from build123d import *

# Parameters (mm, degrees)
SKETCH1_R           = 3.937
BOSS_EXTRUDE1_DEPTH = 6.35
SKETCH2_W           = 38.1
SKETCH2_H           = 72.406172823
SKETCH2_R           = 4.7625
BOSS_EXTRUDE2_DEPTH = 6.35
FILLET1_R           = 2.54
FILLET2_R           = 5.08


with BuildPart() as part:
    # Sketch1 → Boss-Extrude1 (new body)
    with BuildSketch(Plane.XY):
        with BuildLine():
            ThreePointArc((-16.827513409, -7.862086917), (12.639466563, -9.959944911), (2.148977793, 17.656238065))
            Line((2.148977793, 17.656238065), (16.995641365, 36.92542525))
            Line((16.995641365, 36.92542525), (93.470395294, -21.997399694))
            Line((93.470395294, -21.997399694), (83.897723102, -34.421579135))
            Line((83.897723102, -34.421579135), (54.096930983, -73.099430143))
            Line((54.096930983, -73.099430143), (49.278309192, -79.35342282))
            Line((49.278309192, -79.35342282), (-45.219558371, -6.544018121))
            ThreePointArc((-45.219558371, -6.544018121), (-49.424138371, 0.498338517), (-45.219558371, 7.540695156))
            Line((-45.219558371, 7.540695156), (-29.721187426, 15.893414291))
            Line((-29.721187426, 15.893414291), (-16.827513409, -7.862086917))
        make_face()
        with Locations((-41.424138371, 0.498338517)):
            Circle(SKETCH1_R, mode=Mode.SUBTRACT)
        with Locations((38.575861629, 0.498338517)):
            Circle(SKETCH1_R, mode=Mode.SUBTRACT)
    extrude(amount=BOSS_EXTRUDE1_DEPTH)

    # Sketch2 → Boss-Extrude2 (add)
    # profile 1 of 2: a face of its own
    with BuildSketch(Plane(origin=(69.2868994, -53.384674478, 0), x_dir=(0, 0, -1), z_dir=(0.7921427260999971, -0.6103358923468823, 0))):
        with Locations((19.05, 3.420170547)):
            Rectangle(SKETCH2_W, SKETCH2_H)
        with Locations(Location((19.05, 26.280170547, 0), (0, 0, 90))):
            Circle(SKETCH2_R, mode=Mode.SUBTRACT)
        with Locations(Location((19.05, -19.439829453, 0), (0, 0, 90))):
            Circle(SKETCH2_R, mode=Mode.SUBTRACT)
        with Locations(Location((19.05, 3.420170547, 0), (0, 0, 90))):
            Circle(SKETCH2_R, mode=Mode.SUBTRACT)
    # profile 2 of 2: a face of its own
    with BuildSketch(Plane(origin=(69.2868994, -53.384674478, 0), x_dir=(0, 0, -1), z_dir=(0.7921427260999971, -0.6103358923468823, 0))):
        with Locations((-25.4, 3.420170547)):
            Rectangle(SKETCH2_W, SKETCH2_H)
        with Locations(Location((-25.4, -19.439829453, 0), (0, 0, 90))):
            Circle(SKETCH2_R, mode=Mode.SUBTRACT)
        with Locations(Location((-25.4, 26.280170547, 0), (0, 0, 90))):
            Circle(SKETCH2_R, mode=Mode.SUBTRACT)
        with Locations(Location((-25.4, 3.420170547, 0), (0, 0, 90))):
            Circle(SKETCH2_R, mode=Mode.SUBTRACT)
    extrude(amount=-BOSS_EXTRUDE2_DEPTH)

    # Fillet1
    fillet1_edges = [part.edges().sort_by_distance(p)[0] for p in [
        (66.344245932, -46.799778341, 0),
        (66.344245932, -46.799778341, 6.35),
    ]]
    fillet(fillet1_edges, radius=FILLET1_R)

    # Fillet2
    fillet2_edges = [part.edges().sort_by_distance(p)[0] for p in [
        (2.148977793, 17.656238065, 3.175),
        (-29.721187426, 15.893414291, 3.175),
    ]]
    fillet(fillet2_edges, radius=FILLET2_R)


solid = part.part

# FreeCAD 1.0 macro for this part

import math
import FreeCAD as App
import Part
import Sketcher

V = App.Vector
Q = App.Units.Quantity


def edges_at(feature, points):
    """Names of the edges that pass closest to the given points."""
    edges = feature.Shape.Edges
    near = lambda p: min(range(len(edges)), key=lambda i: edges[i].distToShape(Part.Vertex(*p))[0])
    return sorted({f"Edge{near(p) + 1}" for p in points})


def add_polygon(sketch, points):
    """Adds a closed chain of lines whose ends are joined by coincident constraints."""
    first, n = sketch.GeometryCount, len(points)
    for a, b in zip(points, points[1:] + points[:1]):
        sketch.addGeometry(Part.LineSegment(App.Vector(*a, 0), App.Vector(*b, 0)), False)
    for i in range(n):
        sketch.addConstraint(Sketcher.Constraint("Coincident", first + i, 2, first + (i + 1) % n, 1))

doc = App.newDocument("Part")
body = doc.addObject("PartDesign::Body", "Body")

# Sketch on XY plane
sketch1 = doc.addObject("Sketcher::SketchObject", "Sketch")
body.addObject(sketch1)
sketch1.AttachmentSupport = (doc.XY_Plane, [""])
sketch1.MapMode = "FlatFace"
sketch1.addGeometry(Part.ArcOfCircle(Part.Circle(V(-1.424138, 0.498339, 0), V(0, 0, 1), 17.526), math.radians(-151.508403), math.radians(78.23634)), False)
sketch1.addGeometry(Part.LineSegment(V(-16.827513, -7.862087, 0), V(-29.721187, 15.893414, 0)), False)
sketch1.addGeometry(Part.LineSegment(V(-29.721187, 15.893414, 0), V(-45.219558, 7.540695, 0)), False)
sketch1.addGeometry(Part.ArcOfCircle(Part.Circle(V(-41.424138, 0.498339, 0), V(0, 0, 1), 8), math.radians(118.322081), math.radians(241.677919)), False)
sketch1.addGeometry(Part.LineSegment(V(-45.219558, -6.544018, 0), V(49.278309, -79.353423, 0)), False)
sketch1.addGeometry(Part.LineSegment(V(49.278309, -79.353423, 0), V(54.096931, -73.09943, 0)), False)
sketch1.addGeometry(Part.LineSegment(V(54.096931, -73.09943, 0), V(83.897723, -34.421579, 0)), False)
sketch1.addGeometry(Part.LineSegment(V(83.897723, -34.421579, 0), V(93.470395, -21.9974, 0)), False)
sketch1.addGeometry(Part.LineSegment(V(93.470395, -21.9974, 0), V(16.995641, 36.925425, 0)), False)
sketch1.addGeometry(Part.LineSegment(V(16.995641, 36.925425, 0), V(2.148978, 17.656238, 0)), False)
sketch1.addGeometry(Part.Circle(V(38.575862, 0.498339, 0), V(0, 0, 1), 3.937), False)
sketch1.addGeometry(Part.Circle(V(-41.424138, 0.498339, 0), V(0, 0, 1), 3.937), False)
sketch1.addConstraint(Sketcher.Constraint("Coincident", 0, 1, 1, 1))
sketch1.addConstraint(Sketcher.Constraint("Coincident", 1, 2, 2, 1))
sketch1.addConstraint(Sketcher.Constraint("Coincident", 2, 2, 3, 1))
sketch1.addConstraint(Sketcher.Constraint("Coincident", 3, 2, 4, 1))
sketch1.addConstraint(Sketcher.Constraint("Coincident", 4, 2, 5, 1))
sketch1.addConstraint(Sketcher.Constraint("Coincident", 5, 2, 6, 1))
sketch1.addConstraint(Sketcher.Constraint("Coincident", 6, 2, 7, 1))
sketch1.addConstraint(Sketcher.Constraint("Coincident", 7, 2, 8, 1))
sketch1.addConstraint(Sketcher.Constraint("Coincident", 8, 2, 9, 1))
sketch1.addConstraint(Sketcher.Constraint("Coincident", 9, 2, 0, 2))
sketch1.addConstraint(Sketcher.Constraint("Coincident", 11, 3, 3, 3))
sketch1.addConstraint(Sketcher.Constraint("Diameter", 10, Q("0.31 in")))
sketch1.addConstraint(Sketcher.Constraint("Diameter", 11, Q("0.31 in")))
sketch1.addConstraint(Sketcher.Constraint("Radius", 0, Q("0.69 in")))
sketch1.addConstraint(Sketcher.Constraint("Radius", 3, 8.0))
sketch1.addConstraint(Sketcher.Constraint("DistanceY", 6, 2, 10, 3, Q("1.3747999 in")))
sketch1.addConstraint(Sketcher.Constraint("DistanceY", 6, 2, 0, 3, Q("1.3747999 in")))
sketch1.addConstraint(Sketcher.Constraint("Distance", 9, 24.325398))
sketch1.addConstraint(Sketcher.Constraint("DistanceY", 7, 2, -1, 1, 21.9974))
sketch1.addConstraint(Sketcher.Constraint("DistanceX", 3, 3, 0, 3, 40.0))
sketch1.addConstraint(Sketcher.Constraint("DistanceX", 0, 3, 10, 3, 40.0))
sketch1.addConstraint(Sketcher.Constraint("DistanceY", 0, 1, 1, 2, 23.755501))
sketch1.addConstraint(Sketcher.Constraint("DistanceX", 2, 2, 8, 2, 62.2152))
sketch1.addConstraint(Sketcher.Constraint("DistanceY", 0, 3, 9, 2, 17.1579))
sketch1.addConstraint(Sketcher.Constraint("Distance", 1, 27.029071))
sketch1.addConstraint(Sketcher.Constraint("Distance", 2, 17.605892))
sketch1.addConstraint(Sketcher.Constraint("Distance", 4, 119.293991))
sketch1.addConstraint(Sketcher.Constraint("Distance", 6, 48.826871))
sketch1.addConstraint(Sketcher.Constraint("Distance", 7, 15.684269))
sketch1.addConstraint(Sketcher.Constraint("DistanceX", 0, 3, -1, 1, 1.424138))
sketch1.addConstraint(Sketcher.Constraint("DistanceY", -1, 1, 0, 3, 0.498339))
sketch1.addConstraint(Sketcher.Constraint("DistanceY", -1, 1, 3, 3, 0.498339))
sketch1.addConstraint(Sketcher.Constraint("DistanceX", 3, 2, -1, 1, 45.219558))
sketch1.addConstraint(Sketcher.Constraint("DistanceX", -1, 1, 4, 2, 49.278309))
sketch1.addConstraint(Sketcher.Constraint("DistanceX", -1, 1, 5, 2, 54.096931))
sketch1.addConstraint(Sketcher.Constraint("DistanceY", 5, 2, -1, 1, 73.09943))
sketch1.addConstraint(Sketcher.Constraint("DistanceX", 3, 3, 1, 2, 11.702951))
pad1 = doc.addObject("PartDesign::Pad", "Pad")
body.addObject(pad1)
pad1.Profile = sketch1
pad1.Length = Q("0.25 in")

# Sketch on an angled plane
sketch2 = doc.addObject("Sketcher::SketchObject", "Sketch001")
body.addObject(sketch2)
sketch2.Placement = App.Placement(V(69.286899, -53.384674, 0), App.Rotation(V(0, 0, -1), V(0.610335892, 0.792142726, 0), V(0.792142726, -0.610335892, 0), "ZXY"))
add_polygon(sketch2, [(0, 39.6), (0, -32.8), (38.1, -32.8), (38.1, 39.6)])  # lines 0-3
sketch2.addGeometry(Part.Circle(V(19.1, -19.4, 0), V(0, 0, 1), 4.8), False)  # 4
sketch2.addGeometry(Part.Circle(V(19.1, 3.4, 0), V(0, 0, 1), 4.8), False)  # 5
sketch2.addGeometry(Part.Circle(V(19.1, 26.3, 0), V(0, 0, 1), 4.8), False)  # 6
add_polygon(sketch2, [(-44.5, 39.6), (-44.5, -32.8), (-6.3, -32.8), (-6.3, 39.6)])  # lines 7-10
sketch2.addGeometry(Part.Circle(V(-25.4, -19.4, 0), V(0, 0, 1), 4.8), False)  # 11
sketch2.addGeometry(Part.Circle(V(-25.4, 3.4, 0), V(0, 0, 1), 4.8), False)  # 12
sketch2.addGeometry(Part.Circle(V(-25.4, 26.3, 0), V(0, 0, 1), 4.8), False)  # 13
sketch2.addConstraint(Sketcher.Constraint("Vertical", 0))
sketch2.addConstraint(Sketcher.Constraint("Horizontal", 1))
sketch2.addConstraint(Sketcher.Constraint("Vertical", 2))
sketch2.addConstraint(Sketcher.Constraint("Horizontal", 3))
sketch2.addConstraint(Sketcher.Constraint("Vertical", 7))
sketch2.addConstraint(Sketcher.Constraint("Horizontal", 8))
sketch2.addConstraint(Sketcher.Constraint("Vertical", 9))
sketch2.addConstraint(Sketcher.Constraint("Horizontal", 10))
sketch2.addConstraint(Sketcher.Constraint("Equal", 4, 5))
sketch2.addConstraint(Sketcher.Constraint("Equal", 5, 6))
sketch2.addConstraint(Sketcher.Constraint("Equal", 6, 11))
sketch2.addConstraint(Sketcher.Constraint("Equal", 11, 12))
sketch2.addConstraint(Sketcher.Constraint("Equal", 12, 13))
sketch2.addConstraint(Sketcher.Constraint("PointOnObject", 0, 2, -2))
sketch2.addConstraint(Sketcher.Constraint("Horizontal", 4, 3, 11, 3))
sketch2.addConstraint(Sketcher.Constraint("Horizontal", 5, 3, 12, 3))
sketch2.addConstraint(Sketcher.Constraint("Horizontal", 6, 3, 13, 3))
sketch2.addConstraint(Sketcher.Constraint("Horizontal", 1, 2, 7, 2))
sketch2.addConstraint(Sketcher.Constraint("Horizontal", 3, 2, 9, 2))
sketch2.addConstraint(Sketcher.Constraint("Vertical", 4, 3, 5, 3))
sketch2.addConstraint(Sketcher.Constraint("Vertical", 5, 3, 6, 3))
sketch2.addConstraint(Sketcher.Constraint("Vertical", 11, 3, 12, 3))
sketch2.addConstraint(Sketcher.Constraint("Vertical", 12, 3, 13, 3))
sketch2.addConstraint(Sketcher.Constraint("Equal", 3, 8))
sketch2.addConstraint(Sketcher.Constraint("Diameter", 4, Q("0.375 in")))
sketch2.addConstraint(Sketcher.Constraint("DistanceX", 1, 1, 1, 2, Q("1.5 in")))
sketch2.addConstraint(Sketcher.Constraint("DistanceX", 11, 3, -1, 1, Q("1 in")))
sketch2.addConstraint(Sketcher.Constraint("DistanceX", 8, 2, 4, 3, Q("1 in")))
sketch2.addConstraint(Sketcher.Constraint("DistanceY", 4, 3, 5, 3, Q("0.9 in")))
sketch2.addConstraint(Sketcher.Constraint("DistanceY", 5, 3, 6, 3, Q("0.9 in")))
sketch2.addConstraint(Sketcher.Constraint("DistanceX", -1, 1, 4, 3, Q("0.75 in")))
sketch2.addConstraint(Sketcher.Constraint("DistanceY", 0, 2, 0, 1, 72.406173))
sketch2.addConstraint(Sketcher.Constraint("DistanceY", 4, 3, -1, 1, 19.439829))
sketch2.addConstraint(Sketcher.Constraint("DistanceY", 0, 2, -1, 1, 32.782916))
pad2 = doc.addObject("PartDesign::Pad", "Pad001")
body.addObject(pad2)
pad2.Profile = sketch2
pad2.Length = Q("0.25 in")
pad2.Reversed = True
doc.recompute()

fillet = doc.addObject("PartDesign::Fillet", "Fillet")
body.addObject(fillet)
fillet.Base = (pad2, edges_at(pad2, [(66.344, -46.8, 0), (66.344, -46.8, 6.35)]))
fillet.Radius = Q("0.1 in")
doc.recompute()

fillet2 = doc.addObject("PartDesign::Fillet", "Fillet001")
body.addObject(fillet2)
fillet2.Base = (fillet, edges_at(fillet, [(2.149, 17.656, 3.175), (-29.721, 15.893, 3.175)]))
fillet2.Radius = Q("0.2 in")

doc.recompute()
